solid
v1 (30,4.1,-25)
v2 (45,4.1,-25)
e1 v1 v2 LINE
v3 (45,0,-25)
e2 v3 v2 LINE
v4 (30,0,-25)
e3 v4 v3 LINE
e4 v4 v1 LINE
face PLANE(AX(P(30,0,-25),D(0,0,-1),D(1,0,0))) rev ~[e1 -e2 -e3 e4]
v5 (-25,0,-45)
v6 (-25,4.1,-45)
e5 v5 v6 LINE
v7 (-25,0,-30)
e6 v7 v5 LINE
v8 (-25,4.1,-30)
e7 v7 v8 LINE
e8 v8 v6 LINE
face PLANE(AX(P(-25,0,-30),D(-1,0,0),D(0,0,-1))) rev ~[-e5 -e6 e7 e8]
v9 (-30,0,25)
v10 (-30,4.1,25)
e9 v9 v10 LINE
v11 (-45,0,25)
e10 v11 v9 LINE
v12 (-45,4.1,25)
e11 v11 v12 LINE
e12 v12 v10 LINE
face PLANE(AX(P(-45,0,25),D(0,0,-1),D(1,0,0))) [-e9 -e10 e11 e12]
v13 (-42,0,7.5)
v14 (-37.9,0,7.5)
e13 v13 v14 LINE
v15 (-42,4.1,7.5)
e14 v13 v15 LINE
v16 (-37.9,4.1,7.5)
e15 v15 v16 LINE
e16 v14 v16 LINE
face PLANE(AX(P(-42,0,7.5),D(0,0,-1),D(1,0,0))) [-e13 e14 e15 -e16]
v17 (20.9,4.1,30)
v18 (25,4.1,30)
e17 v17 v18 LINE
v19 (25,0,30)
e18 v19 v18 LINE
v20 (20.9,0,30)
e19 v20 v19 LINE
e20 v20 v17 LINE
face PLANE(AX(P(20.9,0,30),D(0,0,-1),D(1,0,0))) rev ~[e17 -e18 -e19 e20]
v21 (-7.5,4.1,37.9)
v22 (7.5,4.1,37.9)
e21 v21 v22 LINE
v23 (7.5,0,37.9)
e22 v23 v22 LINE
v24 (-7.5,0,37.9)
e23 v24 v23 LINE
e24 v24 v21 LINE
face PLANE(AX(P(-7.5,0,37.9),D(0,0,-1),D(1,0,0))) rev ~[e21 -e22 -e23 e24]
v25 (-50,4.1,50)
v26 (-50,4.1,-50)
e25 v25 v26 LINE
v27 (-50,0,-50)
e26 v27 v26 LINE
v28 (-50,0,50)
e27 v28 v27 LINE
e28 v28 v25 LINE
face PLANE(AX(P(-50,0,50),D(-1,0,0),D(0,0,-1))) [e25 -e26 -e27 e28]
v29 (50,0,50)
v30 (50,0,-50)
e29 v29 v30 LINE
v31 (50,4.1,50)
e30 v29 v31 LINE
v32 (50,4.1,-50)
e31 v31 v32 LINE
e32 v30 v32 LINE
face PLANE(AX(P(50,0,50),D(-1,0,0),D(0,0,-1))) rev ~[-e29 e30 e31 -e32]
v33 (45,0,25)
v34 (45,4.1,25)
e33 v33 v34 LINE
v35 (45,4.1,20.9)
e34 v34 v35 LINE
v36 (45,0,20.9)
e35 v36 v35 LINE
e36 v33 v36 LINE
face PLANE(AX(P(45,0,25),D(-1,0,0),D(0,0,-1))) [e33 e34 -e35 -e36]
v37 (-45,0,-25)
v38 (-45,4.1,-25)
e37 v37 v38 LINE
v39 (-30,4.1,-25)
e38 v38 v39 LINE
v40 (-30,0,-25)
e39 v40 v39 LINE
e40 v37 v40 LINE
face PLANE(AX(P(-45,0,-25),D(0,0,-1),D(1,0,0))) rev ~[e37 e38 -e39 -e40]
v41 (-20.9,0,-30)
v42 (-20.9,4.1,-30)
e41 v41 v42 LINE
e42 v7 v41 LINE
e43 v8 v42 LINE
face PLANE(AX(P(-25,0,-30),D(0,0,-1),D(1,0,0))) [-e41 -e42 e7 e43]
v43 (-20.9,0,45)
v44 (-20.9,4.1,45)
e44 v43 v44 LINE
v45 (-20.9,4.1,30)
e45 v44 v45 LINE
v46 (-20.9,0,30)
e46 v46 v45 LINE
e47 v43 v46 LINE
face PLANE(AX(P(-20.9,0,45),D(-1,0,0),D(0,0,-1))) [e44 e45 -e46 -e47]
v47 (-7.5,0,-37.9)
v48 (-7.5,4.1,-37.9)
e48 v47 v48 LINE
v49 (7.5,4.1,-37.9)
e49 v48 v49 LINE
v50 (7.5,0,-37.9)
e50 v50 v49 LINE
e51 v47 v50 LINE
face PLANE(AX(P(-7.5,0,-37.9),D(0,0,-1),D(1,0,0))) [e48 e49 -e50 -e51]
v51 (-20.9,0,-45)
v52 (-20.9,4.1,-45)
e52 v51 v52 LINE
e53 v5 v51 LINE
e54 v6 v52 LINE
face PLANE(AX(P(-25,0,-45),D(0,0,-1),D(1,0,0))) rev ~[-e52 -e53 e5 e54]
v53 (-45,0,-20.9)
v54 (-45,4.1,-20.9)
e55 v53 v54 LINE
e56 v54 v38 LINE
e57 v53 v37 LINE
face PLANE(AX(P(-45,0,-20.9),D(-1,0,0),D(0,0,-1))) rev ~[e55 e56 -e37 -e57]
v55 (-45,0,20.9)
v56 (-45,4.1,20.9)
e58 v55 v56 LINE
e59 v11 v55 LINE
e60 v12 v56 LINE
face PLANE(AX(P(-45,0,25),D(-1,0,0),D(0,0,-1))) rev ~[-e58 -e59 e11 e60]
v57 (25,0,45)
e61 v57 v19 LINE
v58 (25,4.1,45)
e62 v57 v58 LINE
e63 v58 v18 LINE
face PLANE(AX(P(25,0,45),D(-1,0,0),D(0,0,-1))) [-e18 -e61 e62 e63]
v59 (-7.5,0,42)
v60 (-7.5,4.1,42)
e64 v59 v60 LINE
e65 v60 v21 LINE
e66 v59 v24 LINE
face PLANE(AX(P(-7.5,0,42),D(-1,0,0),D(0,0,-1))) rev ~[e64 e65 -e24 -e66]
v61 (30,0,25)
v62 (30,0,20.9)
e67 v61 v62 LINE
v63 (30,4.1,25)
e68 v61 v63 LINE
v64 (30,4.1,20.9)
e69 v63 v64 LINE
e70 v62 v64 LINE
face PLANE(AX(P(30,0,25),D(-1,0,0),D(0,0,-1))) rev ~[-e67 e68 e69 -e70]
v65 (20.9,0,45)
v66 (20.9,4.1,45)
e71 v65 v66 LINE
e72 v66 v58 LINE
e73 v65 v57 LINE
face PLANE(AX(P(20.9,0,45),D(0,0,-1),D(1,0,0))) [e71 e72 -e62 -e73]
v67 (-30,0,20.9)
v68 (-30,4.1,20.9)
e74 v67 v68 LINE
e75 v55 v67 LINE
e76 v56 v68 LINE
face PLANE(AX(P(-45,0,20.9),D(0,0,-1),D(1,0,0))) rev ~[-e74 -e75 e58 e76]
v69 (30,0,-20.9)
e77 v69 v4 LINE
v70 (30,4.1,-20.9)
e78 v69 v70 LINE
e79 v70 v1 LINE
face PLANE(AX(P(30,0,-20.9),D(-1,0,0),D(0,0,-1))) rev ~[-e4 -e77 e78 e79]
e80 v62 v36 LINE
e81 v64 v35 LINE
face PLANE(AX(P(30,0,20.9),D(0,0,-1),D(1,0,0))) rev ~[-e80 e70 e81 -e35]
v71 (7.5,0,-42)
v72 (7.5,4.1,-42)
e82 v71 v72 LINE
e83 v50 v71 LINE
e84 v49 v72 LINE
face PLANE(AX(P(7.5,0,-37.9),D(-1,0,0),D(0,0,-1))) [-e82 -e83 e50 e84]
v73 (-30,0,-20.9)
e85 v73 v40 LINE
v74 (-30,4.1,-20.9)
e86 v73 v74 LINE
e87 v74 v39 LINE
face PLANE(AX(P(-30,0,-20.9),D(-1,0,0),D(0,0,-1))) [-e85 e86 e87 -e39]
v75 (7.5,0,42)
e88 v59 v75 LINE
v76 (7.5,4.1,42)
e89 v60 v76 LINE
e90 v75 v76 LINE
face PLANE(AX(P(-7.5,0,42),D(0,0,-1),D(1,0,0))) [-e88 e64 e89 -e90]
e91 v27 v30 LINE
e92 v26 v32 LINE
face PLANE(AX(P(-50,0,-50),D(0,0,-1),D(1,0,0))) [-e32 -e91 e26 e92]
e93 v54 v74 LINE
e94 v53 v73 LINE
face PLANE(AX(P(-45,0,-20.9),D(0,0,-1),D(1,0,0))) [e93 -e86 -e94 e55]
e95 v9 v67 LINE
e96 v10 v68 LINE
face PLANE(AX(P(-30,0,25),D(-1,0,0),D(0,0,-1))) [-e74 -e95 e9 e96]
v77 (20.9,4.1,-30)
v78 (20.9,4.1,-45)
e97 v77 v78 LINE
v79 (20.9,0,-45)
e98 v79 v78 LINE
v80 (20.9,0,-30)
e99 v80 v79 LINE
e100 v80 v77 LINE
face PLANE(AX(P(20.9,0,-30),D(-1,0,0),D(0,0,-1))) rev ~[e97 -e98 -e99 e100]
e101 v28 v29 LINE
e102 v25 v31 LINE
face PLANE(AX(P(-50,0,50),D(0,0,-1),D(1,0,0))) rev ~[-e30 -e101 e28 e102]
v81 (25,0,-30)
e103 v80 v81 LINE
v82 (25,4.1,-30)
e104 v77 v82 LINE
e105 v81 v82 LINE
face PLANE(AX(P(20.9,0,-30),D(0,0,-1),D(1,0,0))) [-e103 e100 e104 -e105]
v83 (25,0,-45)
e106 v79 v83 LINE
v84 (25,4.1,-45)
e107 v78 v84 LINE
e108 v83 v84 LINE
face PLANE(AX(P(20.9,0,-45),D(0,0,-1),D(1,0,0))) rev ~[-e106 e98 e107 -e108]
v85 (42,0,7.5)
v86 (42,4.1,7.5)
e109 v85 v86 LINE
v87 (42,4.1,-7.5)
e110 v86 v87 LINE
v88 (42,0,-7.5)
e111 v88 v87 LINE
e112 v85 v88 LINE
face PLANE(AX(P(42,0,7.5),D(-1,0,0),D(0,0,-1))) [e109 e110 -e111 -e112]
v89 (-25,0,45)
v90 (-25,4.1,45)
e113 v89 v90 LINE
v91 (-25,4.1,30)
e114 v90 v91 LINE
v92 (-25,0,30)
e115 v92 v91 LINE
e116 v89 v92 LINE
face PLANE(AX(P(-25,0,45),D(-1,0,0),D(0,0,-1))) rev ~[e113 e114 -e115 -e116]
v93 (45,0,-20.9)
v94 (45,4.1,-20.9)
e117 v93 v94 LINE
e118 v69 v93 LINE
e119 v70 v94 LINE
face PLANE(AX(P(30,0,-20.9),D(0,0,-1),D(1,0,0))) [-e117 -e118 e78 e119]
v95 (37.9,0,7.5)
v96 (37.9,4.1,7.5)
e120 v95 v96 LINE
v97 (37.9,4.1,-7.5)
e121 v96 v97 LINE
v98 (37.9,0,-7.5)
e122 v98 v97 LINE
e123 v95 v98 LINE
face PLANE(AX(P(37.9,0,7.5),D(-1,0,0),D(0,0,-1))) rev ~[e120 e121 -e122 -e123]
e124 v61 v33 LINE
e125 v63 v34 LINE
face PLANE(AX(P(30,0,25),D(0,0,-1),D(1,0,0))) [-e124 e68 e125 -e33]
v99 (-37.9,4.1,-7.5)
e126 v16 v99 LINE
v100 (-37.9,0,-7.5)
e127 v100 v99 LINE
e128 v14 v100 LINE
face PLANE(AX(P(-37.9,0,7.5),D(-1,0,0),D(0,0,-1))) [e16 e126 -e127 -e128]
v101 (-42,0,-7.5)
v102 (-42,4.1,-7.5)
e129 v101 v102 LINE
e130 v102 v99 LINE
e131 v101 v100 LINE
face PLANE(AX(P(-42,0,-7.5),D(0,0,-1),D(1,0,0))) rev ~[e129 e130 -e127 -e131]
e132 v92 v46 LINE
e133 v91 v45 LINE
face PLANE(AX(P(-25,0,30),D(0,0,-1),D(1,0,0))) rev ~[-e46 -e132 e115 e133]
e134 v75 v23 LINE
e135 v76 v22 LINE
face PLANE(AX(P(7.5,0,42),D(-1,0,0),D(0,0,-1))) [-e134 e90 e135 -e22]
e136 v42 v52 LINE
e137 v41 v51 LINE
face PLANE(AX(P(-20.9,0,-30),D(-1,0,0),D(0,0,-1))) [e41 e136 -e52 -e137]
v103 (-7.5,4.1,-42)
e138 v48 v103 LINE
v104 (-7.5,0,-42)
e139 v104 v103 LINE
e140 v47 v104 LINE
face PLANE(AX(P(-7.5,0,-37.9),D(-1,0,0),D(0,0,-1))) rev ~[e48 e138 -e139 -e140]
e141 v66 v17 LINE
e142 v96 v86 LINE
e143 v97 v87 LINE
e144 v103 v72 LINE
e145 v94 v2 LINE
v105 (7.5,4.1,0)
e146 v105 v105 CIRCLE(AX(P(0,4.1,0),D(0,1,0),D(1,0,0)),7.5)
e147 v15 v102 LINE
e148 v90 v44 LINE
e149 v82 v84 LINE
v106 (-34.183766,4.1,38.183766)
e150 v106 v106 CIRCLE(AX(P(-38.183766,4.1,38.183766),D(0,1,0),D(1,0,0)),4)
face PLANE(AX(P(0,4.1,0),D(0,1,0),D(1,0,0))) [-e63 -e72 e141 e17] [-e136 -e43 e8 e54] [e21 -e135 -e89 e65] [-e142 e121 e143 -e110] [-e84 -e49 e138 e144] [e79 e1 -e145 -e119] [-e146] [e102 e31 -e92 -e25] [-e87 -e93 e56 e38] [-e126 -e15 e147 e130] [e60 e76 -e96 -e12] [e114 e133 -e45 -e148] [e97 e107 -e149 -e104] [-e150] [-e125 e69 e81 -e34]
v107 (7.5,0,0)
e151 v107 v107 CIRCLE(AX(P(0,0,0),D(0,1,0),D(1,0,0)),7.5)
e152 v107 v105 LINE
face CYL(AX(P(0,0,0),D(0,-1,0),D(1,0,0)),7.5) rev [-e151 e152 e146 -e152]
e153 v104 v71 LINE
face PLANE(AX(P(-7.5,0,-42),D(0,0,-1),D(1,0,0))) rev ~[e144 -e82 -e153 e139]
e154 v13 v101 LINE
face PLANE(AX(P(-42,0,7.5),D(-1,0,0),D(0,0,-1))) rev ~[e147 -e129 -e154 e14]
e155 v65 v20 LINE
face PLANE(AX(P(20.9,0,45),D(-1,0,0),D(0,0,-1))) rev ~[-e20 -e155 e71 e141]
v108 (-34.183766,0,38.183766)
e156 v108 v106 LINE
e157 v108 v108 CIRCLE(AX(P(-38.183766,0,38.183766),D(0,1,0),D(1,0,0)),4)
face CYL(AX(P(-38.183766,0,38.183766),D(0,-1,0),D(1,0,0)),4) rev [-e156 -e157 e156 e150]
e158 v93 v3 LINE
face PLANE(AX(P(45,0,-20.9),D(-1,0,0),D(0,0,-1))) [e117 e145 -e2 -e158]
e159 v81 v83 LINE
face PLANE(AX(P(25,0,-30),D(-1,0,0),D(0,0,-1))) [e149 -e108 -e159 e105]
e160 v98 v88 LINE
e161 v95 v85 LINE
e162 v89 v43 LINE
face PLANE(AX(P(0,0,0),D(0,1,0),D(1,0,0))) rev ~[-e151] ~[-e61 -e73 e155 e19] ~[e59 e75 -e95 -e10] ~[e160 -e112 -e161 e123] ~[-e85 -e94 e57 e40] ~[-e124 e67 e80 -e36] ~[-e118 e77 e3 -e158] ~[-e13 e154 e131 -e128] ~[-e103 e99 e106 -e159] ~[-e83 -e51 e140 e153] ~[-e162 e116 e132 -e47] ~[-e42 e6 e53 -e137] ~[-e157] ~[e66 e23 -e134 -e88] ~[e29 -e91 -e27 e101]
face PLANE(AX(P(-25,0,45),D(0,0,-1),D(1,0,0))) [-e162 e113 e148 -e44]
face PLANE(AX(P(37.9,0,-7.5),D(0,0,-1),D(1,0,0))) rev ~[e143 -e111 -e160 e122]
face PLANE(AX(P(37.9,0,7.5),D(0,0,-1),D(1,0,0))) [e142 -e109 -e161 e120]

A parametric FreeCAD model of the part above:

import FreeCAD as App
import Part
import Sketcher
Q = App.Units.Quantity


def add_polygon(sketch, points):
    """Adds a closed chain of lines whose ends are joined by coincident constraints."""
    first, n = sketch.GeometryCount, len(points)
    for a, b in zip(points, points[1:] + points[:1]):
        sketch.addGeometry(Part.LineSegment(App.Vector(*a, 0), App.Vector(*b, 0)), False)
    for i in range(n):
        sketch.addConstraint(Sketcher.Constraint("Coincident", first + i, 2, first + (i + 1) % n, 1))

doc = App.newDocument("Part")
params = doc.addObject("Spreadsheet::Sheet", "Params")
for row, (alias, value) in enumerate([
    ("sketch1_diameter", "8 mm"),
    ("sketch1_diameter2", "15 mm"),
    ("sketch1_width", "100 mm"),
    ("sketch1_width2", "15 mm"),
    ("sketch1_width3", "4.1 mm"),
    ("pad1_length", "4.1 mm"),
], start=1):
    params.set(f"A{row}", alias)
    params.set(f"B{row}", "=" + value)
    params.setAlias(f"B{row}", alias)

body = doc.addObject("PartDesign::Body", "Body")

sketch1 = body.newObject("Sketcher::SketchObject", "Sketch")
sketch1.AttachmentSupport = (doc.getObject("XZ_Plane"), [""])
sketch1.MapMode = "FlatFace"
add_polygon(sketch1, [(-50, -50), (-50, 50), (50, 50), (50, -50)])
sketch1.addGeometry(Part.Circle(App.Vector(-38.2, 38.2, 0), App.Vector(0, 0, 1), 4), False)
add_polygon(sketch1, [(-20.9, 45), (-25, 45), (-25, 30), (-20.9, 30)])
add_polygon(sketch1, [(-30, 25), (-45, 25), (-45, 20.9), (-30, 20.9)])
add_polygon(sketch1, [(7.5, 42), (-7.5, 42), (-7.5, 37.9), (7.5, 37.9)])
add_polygon(sketch1, [(25, 45), (20.9, 45), (20.9, 30), (25, 30)])
add_polygon(sketch1, [(45, 25), (30, 25), (30, 20.9), (45, 20.9)])
add_polygon(sketch1, [(-37.9, 7.5), (-42, 7.5), (-42, -7.5), (-37.9, -7.5)])
add_polygon(sketch1, [(-30, -20.9), (-45, -20.9), (-45, -25), (-30, -25)])
add_polygon(sketch1, [(-20.9, -30), (-25, -30), (-25, -45), (-20.9, -45)])
sketch1.addGeometry(Part.Circle(App.Vector(0, 0, 0), App.Vector(0, 0, 1), 7.5), False)
add_polygon(sketch1, [(42, 7.5), (37.9, 7.5), (37.9, -7.5), (42, -7.5)])
add_polygon(sketch1, [(7.5, -37.9), (-7.5, -37.9), (-7.5, -42), (7.5, -42)])
add_polygon(sketch1, [(45, -20.9), (30, -20.9), (30, -25), (45, -25)])
add_polygon(sketch1, [(25, -30), (20.9, -30), (20.9, -45), (25, -45)])
sketch1.addConstraint([
    Sketcher.Constraint("Vertical", 0),
    Sketcher.Constraint("Horizontal", 1),
    Sketcher.Constraint("Vertical", 2),
    Sketcher.Constraint("Horizontal", 3),
    Sketcher.Constraint("Horizontal", 5),
    Sketcher.Constraint("Vertical", 6),
    Sketcher.Constraint("Horizontal", 7),
    Sketcher.Constraint("Vertical", 8),
    Sketcher.Constraint("Horizontal", 9),
    Sketcher.Constraint("Vertical", 10),
    Sketcher.Constraint("Horizontal", 11),
    Sketcher.Constraint("Vertical", 12),
    Sketcher.Constraint("Horizontal", 13),
    Sketcher.Constraint("Vertical", 14),
    Sketcher.Constraint("Horizontal", 15),
    Sketcher.Constraint("Vertical", 16),
    Sketcher.Constraint("Horizontal", 17),
    Sketcher.Constraint("Vertical", 18),
    Sketcher.Constraint("Horizontal", 19),
    Sketcher.Constraint("Vertical", 20),
    Sketcher.Constraint("Horizontal", 21),
    Sketcher.Constraint("Vertical", 22),
    Sketcher.Constraint("Horizontal", 23),
    Sketcher.Constraint("Vertical", 24),
    Sketcher.Constraint("Horizontal", 25),
    Sketcher.Constraint("Vertical", 26),
    Sketcher.Constraint("Horizontal", 27),
    Sketcher.Constraint("Vertical", 28),
    Sketcher.Constraint("Horizontal", 29),
    Sketcher.Constraint("Vertical", 30),
    Sketcher.Constraint("Horizontal", 31),
    Sketcher.Constraint("Vertical", 32),
    Sketcher.Constraint("Horizontal", 33),
    Sketcher.Constraint("Vertical", 34),
    Sketcher.Constraint("Horizontal", 35),
    Sketcher.Constraint("Vertical", 36),
    Sketcher.Constraint("Horizontal", 38),
    Sketcher.Constraint("Vertical", 39),
    Sketcher.Constraint("Horizontal", 40),
    Sketcher.Constraint("Vertical", 41),
    Sketcher.Constraint("Horizontal", 42),
    Sketcher.Constraint("Vertical", 43),
    Sketcher.Constraint("Horizontal", 44),
    Sketcher.Constraint("Vertical", 45),
    Sketcher.Constraint("Horizontal", 46),
    Sketcher.Constraint("Vertical", 47),
    Sketcher.Constraint("Horizontal", 48),
    Sketcher.Constraint("Vertical", 49),
    Sketcher.Constraint("Horizontal", 50),
    Sketcher.Constraint("Vertical", 51),
    Sketcher.Constraint("Horizontal", 52),
    Sketcher.Constraint("Vertical", 53),
    Sketcher.Constraint("Coincident", 37, 3, -1, 1),
    Sketcher.Constraint("Symmetric", 0, 2, 2, 2, -1, 1),
    Sketcher.Constraint("Symmetric", 23, 2, 29, 2, -1, 1),
    Sketcher.Constraint("Symmetric", 21, 2, 31, 2, -1, 1),
    Sketcher.Constraint("Symmetric", 19, 2, 33, 2, -1, 1),
    Sketcher.Constraint("Symmetric", 17, 2, 35, 2, -1, 1),
    Sketcher.Constraint("Symmetric", 27, 2, 38, 2, -1, 1),
    Sketcher.Constraint("Symmetric", 25, 2, 40, 2, -1, 1),
    Sketcher.Constraint("Symmetric", 15, 2, 42, 2, -1, 1),
    Sketcher.Constraint("Symmetric", 13, 2, 44, 2, -1, 1),
    Sketcher.Constraint("Symmetric", 11, 2, 46, 2, -1, 1),
    Sketcher.Constraint("Symmetric", 9, 2, 48, 2, -1, 1),
    Sketcher.Constraint("Symmetric", 7, 2, 50, 2, -1, 1),
    Sketcher.Constraint("Symmetric", 5, 2, 52, 2, -1, 1),
    Sketcher.Constraint("Symmetric", 8, 2, 17, 2, -2),
    Sketcher.Constraint("Symmetric", 6, 2, 19, 2, -2),
    Sketcher.Constraint("Symmetric", 12, 2, 21, 2, -2),
    Sketcher.Constraint("Symmetric", 10, 2, 23, 2, -2),
    Sketcher.Constraint("Horizontal", 28, 2, 38, 2),
    Sketcher.Constraint("Vertical", 14, 2, 42, 2),
    Sketcher.Constraint("Equal", 11, 13),
    Sketcher.Constraint("Equal", 19, 25),
    Sketcher.Constraint("Equal", 3, 0),
    Sketcher.Constraint("Equal", 48, 6),
    Sketcher.Constraint("Equal", 52, 10),
    Sketcher.Constraint("Equal", 12, 14),
    Sketcher.Constraint("Equal", 20, 26),
    Sketcher.Constraint("Diameter", 4, Q("8 mm")),
    Sketcher.Constraint("Diameter", 37, Q("15 mm")),
    Sketcher.Constraint("DistanceX", 1, 1, 1, 2, Q("100 mm")),
    Sketcher.Constraint("DistanceX", 9, 2, 9, 1, Q("15 mm")),
    Sketcher.Constraint("DistanceX", 5, 2, 5, 1, Q("4.1 mm")),
    Sketcher.Constraint("DistanceX", 5, 2, -1, 1, Q("25 mm")),
    Sketcher.Constraint("DistanceY", -1, 1, 5, 2, Q("45 mm")),
    Sketcher.Constraint("DistanceX", 9, 2, -1, 1, Q("45 mm")),
    Sketcher.Constraint("DistanceY", -1, 1, 9, 2, Q("25 mm")),
    Sketcher.Constraint("DistanceY", -1, 1, 13, 2, Q("42 mm")),
    Sketcher.Constraint("DistanceX", 25, 2, -1, 1, Q("42 mm")),
    Sketcher.Constraint("DistanceX", 4, 3, -1, 1, Q("38.183766 mm")),
    Sketcher.Constraint("DistanceY", -1, 1, 4, 3, Q("38.183766 mm")),
])
sketch1.setExpression("Constraints[131]", "Params.sketch1_diameter")
sketch1.setExpression("Constraints[132]", "Params.sketch1_diameter2")
sketch1.setExpression("Constraints[133]", "Params.sketch1_width")
sketch1.setExpression("Constraints[134]", "Params.sketch1_width2")
sketch1.setExpression("Constraints[135]", "Params.sketch1_width3")
pad1 = body.newObject("PartDesign::Pad", "Pad")
pad1.Profile = sketch1
pad1.setExpression("Length", "Params.pad1_length")
pad1.Reversed = True

doc.recompute()
